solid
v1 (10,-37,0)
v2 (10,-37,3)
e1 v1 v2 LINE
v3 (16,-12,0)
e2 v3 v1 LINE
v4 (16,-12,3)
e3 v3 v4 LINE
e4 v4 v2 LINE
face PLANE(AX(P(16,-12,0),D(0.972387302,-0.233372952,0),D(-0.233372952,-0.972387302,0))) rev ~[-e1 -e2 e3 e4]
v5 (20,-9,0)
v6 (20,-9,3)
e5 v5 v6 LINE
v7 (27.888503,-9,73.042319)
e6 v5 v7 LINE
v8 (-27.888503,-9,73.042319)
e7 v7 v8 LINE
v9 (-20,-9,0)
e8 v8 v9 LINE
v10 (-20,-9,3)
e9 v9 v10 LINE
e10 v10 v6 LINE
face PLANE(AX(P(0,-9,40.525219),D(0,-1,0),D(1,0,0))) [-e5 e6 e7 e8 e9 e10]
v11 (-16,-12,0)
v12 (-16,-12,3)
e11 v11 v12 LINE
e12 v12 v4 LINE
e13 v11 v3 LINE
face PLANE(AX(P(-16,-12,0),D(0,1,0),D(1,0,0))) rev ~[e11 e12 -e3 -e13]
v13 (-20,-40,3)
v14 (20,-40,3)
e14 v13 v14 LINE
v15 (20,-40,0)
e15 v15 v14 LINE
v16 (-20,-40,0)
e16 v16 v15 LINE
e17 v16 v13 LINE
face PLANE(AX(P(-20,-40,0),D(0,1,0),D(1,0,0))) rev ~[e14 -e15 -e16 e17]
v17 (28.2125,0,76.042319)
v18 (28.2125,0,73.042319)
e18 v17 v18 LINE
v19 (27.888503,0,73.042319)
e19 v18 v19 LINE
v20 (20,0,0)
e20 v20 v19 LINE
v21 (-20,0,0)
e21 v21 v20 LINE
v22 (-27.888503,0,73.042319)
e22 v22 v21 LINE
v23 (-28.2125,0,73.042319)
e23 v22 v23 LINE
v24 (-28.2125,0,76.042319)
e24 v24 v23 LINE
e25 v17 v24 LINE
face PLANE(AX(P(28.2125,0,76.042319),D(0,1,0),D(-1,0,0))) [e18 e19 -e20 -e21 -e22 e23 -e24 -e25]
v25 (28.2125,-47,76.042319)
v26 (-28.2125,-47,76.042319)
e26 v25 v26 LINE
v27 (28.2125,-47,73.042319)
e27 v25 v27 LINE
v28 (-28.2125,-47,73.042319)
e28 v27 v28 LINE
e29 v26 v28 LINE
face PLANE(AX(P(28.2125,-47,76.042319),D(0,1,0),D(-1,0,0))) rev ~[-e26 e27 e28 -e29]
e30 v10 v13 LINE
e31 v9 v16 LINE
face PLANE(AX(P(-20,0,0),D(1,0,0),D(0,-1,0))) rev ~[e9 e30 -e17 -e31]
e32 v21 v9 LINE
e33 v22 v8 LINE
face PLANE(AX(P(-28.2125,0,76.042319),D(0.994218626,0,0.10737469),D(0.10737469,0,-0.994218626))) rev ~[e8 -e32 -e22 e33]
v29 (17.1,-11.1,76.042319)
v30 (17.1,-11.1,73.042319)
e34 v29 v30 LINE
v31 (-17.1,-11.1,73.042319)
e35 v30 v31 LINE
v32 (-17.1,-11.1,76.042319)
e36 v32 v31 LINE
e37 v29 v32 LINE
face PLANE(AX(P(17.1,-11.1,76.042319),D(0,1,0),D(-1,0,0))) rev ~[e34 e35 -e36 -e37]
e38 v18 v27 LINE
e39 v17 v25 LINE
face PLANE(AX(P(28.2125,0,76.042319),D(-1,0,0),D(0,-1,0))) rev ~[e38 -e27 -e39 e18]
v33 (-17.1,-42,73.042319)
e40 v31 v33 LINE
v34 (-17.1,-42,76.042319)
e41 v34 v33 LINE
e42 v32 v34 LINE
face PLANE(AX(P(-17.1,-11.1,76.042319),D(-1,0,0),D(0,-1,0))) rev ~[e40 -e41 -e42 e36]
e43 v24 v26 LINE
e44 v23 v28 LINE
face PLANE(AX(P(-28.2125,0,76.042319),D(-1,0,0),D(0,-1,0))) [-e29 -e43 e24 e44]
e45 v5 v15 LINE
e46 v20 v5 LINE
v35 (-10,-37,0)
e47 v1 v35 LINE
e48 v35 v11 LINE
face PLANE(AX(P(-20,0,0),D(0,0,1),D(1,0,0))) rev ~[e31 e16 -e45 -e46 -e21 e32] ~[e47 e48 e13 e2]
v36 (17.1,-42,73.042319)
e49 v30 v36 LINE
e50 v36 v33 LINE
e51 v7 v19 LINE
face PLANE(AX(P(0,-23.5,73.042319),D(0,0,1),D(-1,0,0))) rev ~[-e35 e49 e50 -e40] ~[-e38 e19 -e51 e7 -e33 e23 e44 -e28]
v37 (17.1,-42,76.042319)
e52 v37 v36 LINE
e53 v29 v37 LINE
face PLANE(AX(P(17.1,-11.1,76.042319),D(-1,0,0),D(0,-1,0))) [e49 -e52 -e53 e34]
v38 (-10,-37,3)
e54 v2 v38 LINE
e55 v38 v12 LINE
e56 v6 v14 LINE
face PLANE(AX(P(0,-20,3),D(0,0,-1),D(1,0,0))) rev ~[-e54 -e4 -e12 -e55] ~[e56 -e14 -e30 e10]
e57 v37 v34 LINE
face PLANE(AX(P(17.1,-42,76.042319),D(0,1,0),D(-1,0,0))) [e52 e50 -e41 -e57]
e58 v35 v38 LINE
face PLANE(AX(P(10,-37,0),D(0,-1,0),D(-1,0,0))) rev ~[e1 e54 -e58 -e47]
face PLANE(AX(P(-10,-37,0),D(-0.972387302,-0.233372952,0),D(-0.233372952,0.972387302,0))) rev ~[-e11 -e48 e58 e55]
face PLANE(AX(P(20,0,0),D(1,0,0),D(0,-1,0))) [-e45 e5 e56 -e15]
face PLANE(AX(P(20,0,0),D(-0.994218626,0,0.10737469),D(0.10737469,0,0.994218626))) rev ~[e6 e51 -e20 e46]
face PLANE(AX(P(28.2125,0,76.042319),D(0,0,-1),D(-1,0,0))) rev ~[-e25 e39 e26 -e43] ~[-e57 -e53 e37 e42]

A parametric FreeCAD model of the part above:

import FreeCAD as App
import Part
import Sketcher
from FreeCAD import Vector

doc = App.newDocument("Part")
params = doc.addObject("Spreadsheet::Sheet", "Params")
for row, (alias, value) in enumerate([
    ("sketch1_width", "40 mm"),
    ("pad1_length", "9 mm"),
    ("sketch2_width", "40 mm"),
    ("pad2_length", "3 mm"),
    ("sketch3_height", "47 mm"),
    ("pad3_length", "3 mm"),
    ("sketch4_width", "34.2 mm"),
    ("sketch4_height", "30.9 mm"),
    ("pocket1_length", "5 mm"),
    ("sketch5_width", "32 mm"),
    ("sketch5_width2", "20 mm"),
    ("pocket2_length", "5 mm"),
], start=1):
    params.set(f"A{row}", alias)
    params.set(f"B{row}", "=" + value)
    params.setAlias(f"B{row}", alias)

body = doc.addObject("PartDesign::Body", "Body")

sketch1 = body.newObject("Sketcher::SketchObject", "Sketch")
sketch1.AttachmentSupport = (doc.getObject("XZ_Plane"), [""])
sketch1.MapMode = "FlatFace"
sketch1.addGeometry(Part.LineSegment(Vector(-20, 0, 0), Vector(20, 0, 0)), False)
sketch1.addGeometry(Part.LineSegment(Vector(20, 0, 0), Vector(28.2125, 76.042319, 0)), False)
sketch1.addGeometry(Part.LineSegment(Vector(28.2125, 76.042319, 0), Vector(-28.2125, 76.042319, 0)), False)
sketch1.addGeometry(Part.LineSegment(Vector(-28.2125, 76.042319, 0), Vector(-20, 0, 0)), False)
sketch1.addConstraint(Sketcher.Constraint("Coincident", 0, 2, 1, 1))
sketch1.addConstraint(Sketcher.Constraint("Coincident", 1, 2, 2, 1))
sketch1.addConstraint(Sketcher.Constraint("Coincident", 2, 2, 3, 1))
sketch1.addConstraint(Sketcher.Constraint("Coincident", 3, 2, 0, 1))
sketch1.addConstraint(Sketcher.Constraint("Horizontal", 0))
sketch1.addConstraint(Sketcher.Constraint("Horizontal", 2))
sketch1.addConstraint(Sketcher.Constraint("Symmetric", 0, 2, 3, 2, -1, 1))
sketch1.addConstraint(Sketcher.Constraint("Equal", 1, 3))
sketch1.addConstraint(Sketcher.Constraint("DistanceX", 0, 1, 0, 2, 40.0))
sketch1.addConstraint(Sketcher.Constraint("DistanceX", 2, 2, 2, 1, 56.425))
sketch1.addConstraint(Sketcher.Constraint("DistanceY", -1, 1, 1, 2, 76.042319))
sketch1.setExpression("Constraints[8]", "Params.sketch1_width")
pad1 = body.newObject("PartDesign::Pad", "Pad")
pad1.Profile = sketch1
pad1.setExpression("Length", "Params.pad1_length")

sketch2 = body.newObject("Sketcher::SketchObject", "Sketch001")
sketch2.AttachmentSupport = (doc.getObject("XY_Plane"), [""])
sketch2.MapMode = "FlatFace"
sketch2.addGeometry(Part.LineSegment(Vector(-20, -40, 0), Vector(-20, 0, 0)), False)
sketch2.addGeometry(Part.LineSegment(Vector(-20, 0, 0), Vector(20, 0, 0)), False)
sketch2.addGeometry(Part.LineSegment(Vector(20, 0, 0), Vector(20, -40, 0)), False)
sketch2.addGeometry(Part.LineSegment(Vector(20, -40, 0), Vector(-20, -40, 0)), False)
sketch2.addConstraint(Sketcher.Constraint("Coincident", 0, 2, 1, 1))
sketch2.addConstraint(Sketcher.Constraint("Coincident", 1, 2, 2, 1))
sketch2.addConstraint(Sketcher.Constraint("Coincident", 2, 2, 3, 1))
sketch2.addConstraint(Sketcher.Constraint("Coincident", 3, 2, 0, 1))
sketch2.addConstraint(Sketcher.Constraint("Vertical", 0))
sketch2.addConstraint(Sketcher.Constraint("Horizontal", 1))
sketch2.addConstraint(Sketcher.Constraint("Vertical", 2))
sketch2.addConstraint(Sketcher.Constraint("Horizontal", 3))
sketch2.addConstraint(Sketcher.Constraint("Symmetric", 0, 2, 1, 2, -1, 1))
sketch2.addConstraint(Sketcher.Constraint("Equal", 3, 0))
sketch2.addConstraint(Sketcher.Constraint("DistanceX", 1, 1, 1, 2, 40.0))
sketch2.setExpression("Constraints[10]", "Params.sketch2_width")
pad2 = body.newObject("PartDesign::Pad", "Pad001")
pad2.Profile = sketch2
pad2.setExpression("Length", "Params.pad2_length")

sketch3 = body.newObject("Sketcher::SketchObject", "Sketch002")
sketch3.AttachmentSupport = (doc.getObject("XY_Plane"), [""])
sketch3.MapMode = "FlatFace"
sketch3.AttachmentOffset = App.Placement(Vector(0, 0, 76.042319), App.Rotation())
sketch3.addGeometry(Part.LineSegment(Vector(28.2125, -47, 0), Vector(28.2125, 0, 0)), False)
sketch3.addGeometry(Part.LineSegment(Vector(28.2125, 0, 0), Vector(-28.2125, 0, 0)), False)
sketch3.addGeometry(Part.LineSegment(Vector(-28.2125, 0, 0), Vector(-28.2125, -47, 0)), False)
sketch3.addGeometry(Part.LineSegment(Vector(-28.2125, -47, 0), Vector(28.2125, -47, 0)), False)
sketch3.addConstraint(Sketcher.Constraint("Coincident", 0, 2, 1, 1))
sketch3.addConstraint(Sketcher.Constraint("Coincident", 1, 2, 2, 1))
sketch3.addConstraint(Sketcher.Constraint("Coincident", 2, 2, 3, 1))
sketch3.addConstraint(Sketcher.Constraint("Coincident", 3, 2, 0, 1))
sketch3.addConstraint(Sketcher.Constraint("Vertical", 0))
sketch3.addConstraint(Sketcher.Constraint("Horizontal", 1))
sketch3.addConstraint(Sketcher.Constraint("Vertical", 2))
sketch3.addConstraint(Sketcher.Constraint("Horizontal", 3))
sketch3.addConstraint(Sketcher.Constraint("Symmetric", 0, 2, 1, 2, -1, 1))
sketch3.addConstraint(Sketcher.Constraint("DistanceY", 0, 1, 0, 2, 47.0))
sketch3.addConstraint(Sketcher.Constraint("DistanceX", 1, 2, 1, 1, 56.425))
sketch3.setExpression("Constraints[9]", "Params.sketch3_height")
pad3 = body.newObject("PartDesign::Pad", "Pad002")
pad3.Profile = sketch3
pad3.setExpression("Length", "Params.pad3_length")
pad3.Reversed = True

sketch4 = body.newObject("Sketcher::SketchObject", "Sketch003")
sketch4.AttachmentSupport = (doc.getObject("XY_Plane"), [""])
sketch4.MapMode = "FlatFace"
sketch4.AttachmentOffset = App.Placement(Vector(0, 0, 76.042319), App.Rotation())
sketch4.addGeometry(Part.LineSegment(Vector(17.1, -42, 0), Vector(17.1, -11.1, 0)), False)
sketch4.addGeometry(Part.LineSegment(Vector(17.1, -11.1, 0), Vector(-17.1, -11.1, 0)), False)
sketch4.addGeometry(Part.LineSegment(Vector(-17.1, -11.1, 0), Vector(-17.1, -42, 0)), False)
sketch4.addGeometry(Part.LineSegment(Vector(-17.1, -42, 0), Vector(17.1, -42, 0)), False)
sketch4.addConstraint(Sketcher.Constraint("Coincident", 0, 2, 1, 1))
sketch4.addConstraint(Sketcher.Constraint("Coincident", 1, 2, 2, 1))
sketch4.addConstraint(Sketcher.Constraint("Coincident", 2, 2, 3, 1))
sketch4.addConstraint(Sketcher.Constraint("Coincident", 3, 2, 0, 1))
sketch4.addConstraint(Sketcher.Constraint("Vertical", 0))
sketch4.addConstraint(Sketcher.Constraint("Horizontal", 1))
sketch4.addConstraint(Sketcher.Constraint("Vertical", 2))
sketch4.addConstraint(Sketcher.Constraint("Horizontal", 3))
sketch4.addConstraint(Sketcher.Constraint("DistanceX", 1, 2, 1, 1, 34.2))
sketch4.addConstraint(Sketcher.Constraint("DistanceY", 0, 1, 0, 2, 30.9))
sketch4.addConstraint(Sketcher.Constraint("DistanceY", 2, 2, -1, 1, 42.0))
sketch4.addConstraint(Sketcher.Constraint("DistanceX", -1, 1, 0, 2, 17.1))
sketch4.setExpression("Constraints[8]", "Params.sketch4_width")
sketch4.setExpression("Constraints[9]", "Params.sketch4_height")
pocket1 = body.newObject("PartDesign::Pocket", "Pocket")
pocket1.Profile = sketch4
pocket1.setExpression("Length", "Params.pocket1_length")

sketch5 = body.newObject("Sketcher::SketchObject", "Sketch004")
sketch5.AttachmentSupport = (doc.getObject("XY_Plane"), [""])
sketch5.MapMode = "FlatFace"
sketch5.addGeometry(Part.LineSegment(Vector(-16, -12, 0), Vector(16, -12, 0)), False)
sketch5.addGeometry(Part.LineSegment(Vector(16, -12, 0), Vector(10, -37, 0)), False)
sketch5.addGeometry(Part.LineSegment(Vector(10, -37, 0), Vector(-10, -37, 0)), False)
sketch5.addGeometry(Part.LineSegment(Vector(-10, -37, 0), Vector(-16, -12, 0)), False)
sketch5.addConstraint(Sketcher.Constraint("Coincident", 0, 2, 1, 1))
sketch5.addConstraint(Sketcher.Constraint("Coincident", 1, 2, 2, 1))
sketch5.addConstraint(Sketcher.Constraint("Coincident", 2, 2, 3, 1))
sketch5.addConstraint(Sketcher.Constraint("Coincident", 3, 2, 0, 1))
sketch5.addConstraint(Sketcher.Constraint("Horizontal", 0))
sketch5.addConstraint(Sketcher.Constraint("Horizontal", 2))
sketch5.addConstraint(Sketcher.Constraint("Equal", 1, 3))
sketch5.addConstraint(Sketcher.Constraint("DistanceX", 0, 1, 0, 2, 32.0))
sketch5.addConstraint(Sketcher.Constraint("DistanceX", 2, 2, 2, 1, 20.0))
sketch5.addConstraint(Sketcher.Constraint("DistanceX", -1, 1, 0, 2, 16.0))
sketch5.addConstraint(Sketcher.Constraint("DistanceY", 0, 2, -1, 1, 12.0))
sketch5.addConstraint(Sketcher.Constraint("DistanceY", 1, 2, -1, 1, 37.0))
sketch5.setExpression("Constraints[7]", "Params.sketch5_width")
sketch5.setExpression("Constraints[8]", "Params.sketch5_width2")
pocket2 = body.newObject("PartDesign::Pocket", "Pocket001")
pocket2.Profile = sketch5
pocket2.setExpression("Length", "Params.pocket2_length")
pocket2.Reversed = True

doc.recompute()
